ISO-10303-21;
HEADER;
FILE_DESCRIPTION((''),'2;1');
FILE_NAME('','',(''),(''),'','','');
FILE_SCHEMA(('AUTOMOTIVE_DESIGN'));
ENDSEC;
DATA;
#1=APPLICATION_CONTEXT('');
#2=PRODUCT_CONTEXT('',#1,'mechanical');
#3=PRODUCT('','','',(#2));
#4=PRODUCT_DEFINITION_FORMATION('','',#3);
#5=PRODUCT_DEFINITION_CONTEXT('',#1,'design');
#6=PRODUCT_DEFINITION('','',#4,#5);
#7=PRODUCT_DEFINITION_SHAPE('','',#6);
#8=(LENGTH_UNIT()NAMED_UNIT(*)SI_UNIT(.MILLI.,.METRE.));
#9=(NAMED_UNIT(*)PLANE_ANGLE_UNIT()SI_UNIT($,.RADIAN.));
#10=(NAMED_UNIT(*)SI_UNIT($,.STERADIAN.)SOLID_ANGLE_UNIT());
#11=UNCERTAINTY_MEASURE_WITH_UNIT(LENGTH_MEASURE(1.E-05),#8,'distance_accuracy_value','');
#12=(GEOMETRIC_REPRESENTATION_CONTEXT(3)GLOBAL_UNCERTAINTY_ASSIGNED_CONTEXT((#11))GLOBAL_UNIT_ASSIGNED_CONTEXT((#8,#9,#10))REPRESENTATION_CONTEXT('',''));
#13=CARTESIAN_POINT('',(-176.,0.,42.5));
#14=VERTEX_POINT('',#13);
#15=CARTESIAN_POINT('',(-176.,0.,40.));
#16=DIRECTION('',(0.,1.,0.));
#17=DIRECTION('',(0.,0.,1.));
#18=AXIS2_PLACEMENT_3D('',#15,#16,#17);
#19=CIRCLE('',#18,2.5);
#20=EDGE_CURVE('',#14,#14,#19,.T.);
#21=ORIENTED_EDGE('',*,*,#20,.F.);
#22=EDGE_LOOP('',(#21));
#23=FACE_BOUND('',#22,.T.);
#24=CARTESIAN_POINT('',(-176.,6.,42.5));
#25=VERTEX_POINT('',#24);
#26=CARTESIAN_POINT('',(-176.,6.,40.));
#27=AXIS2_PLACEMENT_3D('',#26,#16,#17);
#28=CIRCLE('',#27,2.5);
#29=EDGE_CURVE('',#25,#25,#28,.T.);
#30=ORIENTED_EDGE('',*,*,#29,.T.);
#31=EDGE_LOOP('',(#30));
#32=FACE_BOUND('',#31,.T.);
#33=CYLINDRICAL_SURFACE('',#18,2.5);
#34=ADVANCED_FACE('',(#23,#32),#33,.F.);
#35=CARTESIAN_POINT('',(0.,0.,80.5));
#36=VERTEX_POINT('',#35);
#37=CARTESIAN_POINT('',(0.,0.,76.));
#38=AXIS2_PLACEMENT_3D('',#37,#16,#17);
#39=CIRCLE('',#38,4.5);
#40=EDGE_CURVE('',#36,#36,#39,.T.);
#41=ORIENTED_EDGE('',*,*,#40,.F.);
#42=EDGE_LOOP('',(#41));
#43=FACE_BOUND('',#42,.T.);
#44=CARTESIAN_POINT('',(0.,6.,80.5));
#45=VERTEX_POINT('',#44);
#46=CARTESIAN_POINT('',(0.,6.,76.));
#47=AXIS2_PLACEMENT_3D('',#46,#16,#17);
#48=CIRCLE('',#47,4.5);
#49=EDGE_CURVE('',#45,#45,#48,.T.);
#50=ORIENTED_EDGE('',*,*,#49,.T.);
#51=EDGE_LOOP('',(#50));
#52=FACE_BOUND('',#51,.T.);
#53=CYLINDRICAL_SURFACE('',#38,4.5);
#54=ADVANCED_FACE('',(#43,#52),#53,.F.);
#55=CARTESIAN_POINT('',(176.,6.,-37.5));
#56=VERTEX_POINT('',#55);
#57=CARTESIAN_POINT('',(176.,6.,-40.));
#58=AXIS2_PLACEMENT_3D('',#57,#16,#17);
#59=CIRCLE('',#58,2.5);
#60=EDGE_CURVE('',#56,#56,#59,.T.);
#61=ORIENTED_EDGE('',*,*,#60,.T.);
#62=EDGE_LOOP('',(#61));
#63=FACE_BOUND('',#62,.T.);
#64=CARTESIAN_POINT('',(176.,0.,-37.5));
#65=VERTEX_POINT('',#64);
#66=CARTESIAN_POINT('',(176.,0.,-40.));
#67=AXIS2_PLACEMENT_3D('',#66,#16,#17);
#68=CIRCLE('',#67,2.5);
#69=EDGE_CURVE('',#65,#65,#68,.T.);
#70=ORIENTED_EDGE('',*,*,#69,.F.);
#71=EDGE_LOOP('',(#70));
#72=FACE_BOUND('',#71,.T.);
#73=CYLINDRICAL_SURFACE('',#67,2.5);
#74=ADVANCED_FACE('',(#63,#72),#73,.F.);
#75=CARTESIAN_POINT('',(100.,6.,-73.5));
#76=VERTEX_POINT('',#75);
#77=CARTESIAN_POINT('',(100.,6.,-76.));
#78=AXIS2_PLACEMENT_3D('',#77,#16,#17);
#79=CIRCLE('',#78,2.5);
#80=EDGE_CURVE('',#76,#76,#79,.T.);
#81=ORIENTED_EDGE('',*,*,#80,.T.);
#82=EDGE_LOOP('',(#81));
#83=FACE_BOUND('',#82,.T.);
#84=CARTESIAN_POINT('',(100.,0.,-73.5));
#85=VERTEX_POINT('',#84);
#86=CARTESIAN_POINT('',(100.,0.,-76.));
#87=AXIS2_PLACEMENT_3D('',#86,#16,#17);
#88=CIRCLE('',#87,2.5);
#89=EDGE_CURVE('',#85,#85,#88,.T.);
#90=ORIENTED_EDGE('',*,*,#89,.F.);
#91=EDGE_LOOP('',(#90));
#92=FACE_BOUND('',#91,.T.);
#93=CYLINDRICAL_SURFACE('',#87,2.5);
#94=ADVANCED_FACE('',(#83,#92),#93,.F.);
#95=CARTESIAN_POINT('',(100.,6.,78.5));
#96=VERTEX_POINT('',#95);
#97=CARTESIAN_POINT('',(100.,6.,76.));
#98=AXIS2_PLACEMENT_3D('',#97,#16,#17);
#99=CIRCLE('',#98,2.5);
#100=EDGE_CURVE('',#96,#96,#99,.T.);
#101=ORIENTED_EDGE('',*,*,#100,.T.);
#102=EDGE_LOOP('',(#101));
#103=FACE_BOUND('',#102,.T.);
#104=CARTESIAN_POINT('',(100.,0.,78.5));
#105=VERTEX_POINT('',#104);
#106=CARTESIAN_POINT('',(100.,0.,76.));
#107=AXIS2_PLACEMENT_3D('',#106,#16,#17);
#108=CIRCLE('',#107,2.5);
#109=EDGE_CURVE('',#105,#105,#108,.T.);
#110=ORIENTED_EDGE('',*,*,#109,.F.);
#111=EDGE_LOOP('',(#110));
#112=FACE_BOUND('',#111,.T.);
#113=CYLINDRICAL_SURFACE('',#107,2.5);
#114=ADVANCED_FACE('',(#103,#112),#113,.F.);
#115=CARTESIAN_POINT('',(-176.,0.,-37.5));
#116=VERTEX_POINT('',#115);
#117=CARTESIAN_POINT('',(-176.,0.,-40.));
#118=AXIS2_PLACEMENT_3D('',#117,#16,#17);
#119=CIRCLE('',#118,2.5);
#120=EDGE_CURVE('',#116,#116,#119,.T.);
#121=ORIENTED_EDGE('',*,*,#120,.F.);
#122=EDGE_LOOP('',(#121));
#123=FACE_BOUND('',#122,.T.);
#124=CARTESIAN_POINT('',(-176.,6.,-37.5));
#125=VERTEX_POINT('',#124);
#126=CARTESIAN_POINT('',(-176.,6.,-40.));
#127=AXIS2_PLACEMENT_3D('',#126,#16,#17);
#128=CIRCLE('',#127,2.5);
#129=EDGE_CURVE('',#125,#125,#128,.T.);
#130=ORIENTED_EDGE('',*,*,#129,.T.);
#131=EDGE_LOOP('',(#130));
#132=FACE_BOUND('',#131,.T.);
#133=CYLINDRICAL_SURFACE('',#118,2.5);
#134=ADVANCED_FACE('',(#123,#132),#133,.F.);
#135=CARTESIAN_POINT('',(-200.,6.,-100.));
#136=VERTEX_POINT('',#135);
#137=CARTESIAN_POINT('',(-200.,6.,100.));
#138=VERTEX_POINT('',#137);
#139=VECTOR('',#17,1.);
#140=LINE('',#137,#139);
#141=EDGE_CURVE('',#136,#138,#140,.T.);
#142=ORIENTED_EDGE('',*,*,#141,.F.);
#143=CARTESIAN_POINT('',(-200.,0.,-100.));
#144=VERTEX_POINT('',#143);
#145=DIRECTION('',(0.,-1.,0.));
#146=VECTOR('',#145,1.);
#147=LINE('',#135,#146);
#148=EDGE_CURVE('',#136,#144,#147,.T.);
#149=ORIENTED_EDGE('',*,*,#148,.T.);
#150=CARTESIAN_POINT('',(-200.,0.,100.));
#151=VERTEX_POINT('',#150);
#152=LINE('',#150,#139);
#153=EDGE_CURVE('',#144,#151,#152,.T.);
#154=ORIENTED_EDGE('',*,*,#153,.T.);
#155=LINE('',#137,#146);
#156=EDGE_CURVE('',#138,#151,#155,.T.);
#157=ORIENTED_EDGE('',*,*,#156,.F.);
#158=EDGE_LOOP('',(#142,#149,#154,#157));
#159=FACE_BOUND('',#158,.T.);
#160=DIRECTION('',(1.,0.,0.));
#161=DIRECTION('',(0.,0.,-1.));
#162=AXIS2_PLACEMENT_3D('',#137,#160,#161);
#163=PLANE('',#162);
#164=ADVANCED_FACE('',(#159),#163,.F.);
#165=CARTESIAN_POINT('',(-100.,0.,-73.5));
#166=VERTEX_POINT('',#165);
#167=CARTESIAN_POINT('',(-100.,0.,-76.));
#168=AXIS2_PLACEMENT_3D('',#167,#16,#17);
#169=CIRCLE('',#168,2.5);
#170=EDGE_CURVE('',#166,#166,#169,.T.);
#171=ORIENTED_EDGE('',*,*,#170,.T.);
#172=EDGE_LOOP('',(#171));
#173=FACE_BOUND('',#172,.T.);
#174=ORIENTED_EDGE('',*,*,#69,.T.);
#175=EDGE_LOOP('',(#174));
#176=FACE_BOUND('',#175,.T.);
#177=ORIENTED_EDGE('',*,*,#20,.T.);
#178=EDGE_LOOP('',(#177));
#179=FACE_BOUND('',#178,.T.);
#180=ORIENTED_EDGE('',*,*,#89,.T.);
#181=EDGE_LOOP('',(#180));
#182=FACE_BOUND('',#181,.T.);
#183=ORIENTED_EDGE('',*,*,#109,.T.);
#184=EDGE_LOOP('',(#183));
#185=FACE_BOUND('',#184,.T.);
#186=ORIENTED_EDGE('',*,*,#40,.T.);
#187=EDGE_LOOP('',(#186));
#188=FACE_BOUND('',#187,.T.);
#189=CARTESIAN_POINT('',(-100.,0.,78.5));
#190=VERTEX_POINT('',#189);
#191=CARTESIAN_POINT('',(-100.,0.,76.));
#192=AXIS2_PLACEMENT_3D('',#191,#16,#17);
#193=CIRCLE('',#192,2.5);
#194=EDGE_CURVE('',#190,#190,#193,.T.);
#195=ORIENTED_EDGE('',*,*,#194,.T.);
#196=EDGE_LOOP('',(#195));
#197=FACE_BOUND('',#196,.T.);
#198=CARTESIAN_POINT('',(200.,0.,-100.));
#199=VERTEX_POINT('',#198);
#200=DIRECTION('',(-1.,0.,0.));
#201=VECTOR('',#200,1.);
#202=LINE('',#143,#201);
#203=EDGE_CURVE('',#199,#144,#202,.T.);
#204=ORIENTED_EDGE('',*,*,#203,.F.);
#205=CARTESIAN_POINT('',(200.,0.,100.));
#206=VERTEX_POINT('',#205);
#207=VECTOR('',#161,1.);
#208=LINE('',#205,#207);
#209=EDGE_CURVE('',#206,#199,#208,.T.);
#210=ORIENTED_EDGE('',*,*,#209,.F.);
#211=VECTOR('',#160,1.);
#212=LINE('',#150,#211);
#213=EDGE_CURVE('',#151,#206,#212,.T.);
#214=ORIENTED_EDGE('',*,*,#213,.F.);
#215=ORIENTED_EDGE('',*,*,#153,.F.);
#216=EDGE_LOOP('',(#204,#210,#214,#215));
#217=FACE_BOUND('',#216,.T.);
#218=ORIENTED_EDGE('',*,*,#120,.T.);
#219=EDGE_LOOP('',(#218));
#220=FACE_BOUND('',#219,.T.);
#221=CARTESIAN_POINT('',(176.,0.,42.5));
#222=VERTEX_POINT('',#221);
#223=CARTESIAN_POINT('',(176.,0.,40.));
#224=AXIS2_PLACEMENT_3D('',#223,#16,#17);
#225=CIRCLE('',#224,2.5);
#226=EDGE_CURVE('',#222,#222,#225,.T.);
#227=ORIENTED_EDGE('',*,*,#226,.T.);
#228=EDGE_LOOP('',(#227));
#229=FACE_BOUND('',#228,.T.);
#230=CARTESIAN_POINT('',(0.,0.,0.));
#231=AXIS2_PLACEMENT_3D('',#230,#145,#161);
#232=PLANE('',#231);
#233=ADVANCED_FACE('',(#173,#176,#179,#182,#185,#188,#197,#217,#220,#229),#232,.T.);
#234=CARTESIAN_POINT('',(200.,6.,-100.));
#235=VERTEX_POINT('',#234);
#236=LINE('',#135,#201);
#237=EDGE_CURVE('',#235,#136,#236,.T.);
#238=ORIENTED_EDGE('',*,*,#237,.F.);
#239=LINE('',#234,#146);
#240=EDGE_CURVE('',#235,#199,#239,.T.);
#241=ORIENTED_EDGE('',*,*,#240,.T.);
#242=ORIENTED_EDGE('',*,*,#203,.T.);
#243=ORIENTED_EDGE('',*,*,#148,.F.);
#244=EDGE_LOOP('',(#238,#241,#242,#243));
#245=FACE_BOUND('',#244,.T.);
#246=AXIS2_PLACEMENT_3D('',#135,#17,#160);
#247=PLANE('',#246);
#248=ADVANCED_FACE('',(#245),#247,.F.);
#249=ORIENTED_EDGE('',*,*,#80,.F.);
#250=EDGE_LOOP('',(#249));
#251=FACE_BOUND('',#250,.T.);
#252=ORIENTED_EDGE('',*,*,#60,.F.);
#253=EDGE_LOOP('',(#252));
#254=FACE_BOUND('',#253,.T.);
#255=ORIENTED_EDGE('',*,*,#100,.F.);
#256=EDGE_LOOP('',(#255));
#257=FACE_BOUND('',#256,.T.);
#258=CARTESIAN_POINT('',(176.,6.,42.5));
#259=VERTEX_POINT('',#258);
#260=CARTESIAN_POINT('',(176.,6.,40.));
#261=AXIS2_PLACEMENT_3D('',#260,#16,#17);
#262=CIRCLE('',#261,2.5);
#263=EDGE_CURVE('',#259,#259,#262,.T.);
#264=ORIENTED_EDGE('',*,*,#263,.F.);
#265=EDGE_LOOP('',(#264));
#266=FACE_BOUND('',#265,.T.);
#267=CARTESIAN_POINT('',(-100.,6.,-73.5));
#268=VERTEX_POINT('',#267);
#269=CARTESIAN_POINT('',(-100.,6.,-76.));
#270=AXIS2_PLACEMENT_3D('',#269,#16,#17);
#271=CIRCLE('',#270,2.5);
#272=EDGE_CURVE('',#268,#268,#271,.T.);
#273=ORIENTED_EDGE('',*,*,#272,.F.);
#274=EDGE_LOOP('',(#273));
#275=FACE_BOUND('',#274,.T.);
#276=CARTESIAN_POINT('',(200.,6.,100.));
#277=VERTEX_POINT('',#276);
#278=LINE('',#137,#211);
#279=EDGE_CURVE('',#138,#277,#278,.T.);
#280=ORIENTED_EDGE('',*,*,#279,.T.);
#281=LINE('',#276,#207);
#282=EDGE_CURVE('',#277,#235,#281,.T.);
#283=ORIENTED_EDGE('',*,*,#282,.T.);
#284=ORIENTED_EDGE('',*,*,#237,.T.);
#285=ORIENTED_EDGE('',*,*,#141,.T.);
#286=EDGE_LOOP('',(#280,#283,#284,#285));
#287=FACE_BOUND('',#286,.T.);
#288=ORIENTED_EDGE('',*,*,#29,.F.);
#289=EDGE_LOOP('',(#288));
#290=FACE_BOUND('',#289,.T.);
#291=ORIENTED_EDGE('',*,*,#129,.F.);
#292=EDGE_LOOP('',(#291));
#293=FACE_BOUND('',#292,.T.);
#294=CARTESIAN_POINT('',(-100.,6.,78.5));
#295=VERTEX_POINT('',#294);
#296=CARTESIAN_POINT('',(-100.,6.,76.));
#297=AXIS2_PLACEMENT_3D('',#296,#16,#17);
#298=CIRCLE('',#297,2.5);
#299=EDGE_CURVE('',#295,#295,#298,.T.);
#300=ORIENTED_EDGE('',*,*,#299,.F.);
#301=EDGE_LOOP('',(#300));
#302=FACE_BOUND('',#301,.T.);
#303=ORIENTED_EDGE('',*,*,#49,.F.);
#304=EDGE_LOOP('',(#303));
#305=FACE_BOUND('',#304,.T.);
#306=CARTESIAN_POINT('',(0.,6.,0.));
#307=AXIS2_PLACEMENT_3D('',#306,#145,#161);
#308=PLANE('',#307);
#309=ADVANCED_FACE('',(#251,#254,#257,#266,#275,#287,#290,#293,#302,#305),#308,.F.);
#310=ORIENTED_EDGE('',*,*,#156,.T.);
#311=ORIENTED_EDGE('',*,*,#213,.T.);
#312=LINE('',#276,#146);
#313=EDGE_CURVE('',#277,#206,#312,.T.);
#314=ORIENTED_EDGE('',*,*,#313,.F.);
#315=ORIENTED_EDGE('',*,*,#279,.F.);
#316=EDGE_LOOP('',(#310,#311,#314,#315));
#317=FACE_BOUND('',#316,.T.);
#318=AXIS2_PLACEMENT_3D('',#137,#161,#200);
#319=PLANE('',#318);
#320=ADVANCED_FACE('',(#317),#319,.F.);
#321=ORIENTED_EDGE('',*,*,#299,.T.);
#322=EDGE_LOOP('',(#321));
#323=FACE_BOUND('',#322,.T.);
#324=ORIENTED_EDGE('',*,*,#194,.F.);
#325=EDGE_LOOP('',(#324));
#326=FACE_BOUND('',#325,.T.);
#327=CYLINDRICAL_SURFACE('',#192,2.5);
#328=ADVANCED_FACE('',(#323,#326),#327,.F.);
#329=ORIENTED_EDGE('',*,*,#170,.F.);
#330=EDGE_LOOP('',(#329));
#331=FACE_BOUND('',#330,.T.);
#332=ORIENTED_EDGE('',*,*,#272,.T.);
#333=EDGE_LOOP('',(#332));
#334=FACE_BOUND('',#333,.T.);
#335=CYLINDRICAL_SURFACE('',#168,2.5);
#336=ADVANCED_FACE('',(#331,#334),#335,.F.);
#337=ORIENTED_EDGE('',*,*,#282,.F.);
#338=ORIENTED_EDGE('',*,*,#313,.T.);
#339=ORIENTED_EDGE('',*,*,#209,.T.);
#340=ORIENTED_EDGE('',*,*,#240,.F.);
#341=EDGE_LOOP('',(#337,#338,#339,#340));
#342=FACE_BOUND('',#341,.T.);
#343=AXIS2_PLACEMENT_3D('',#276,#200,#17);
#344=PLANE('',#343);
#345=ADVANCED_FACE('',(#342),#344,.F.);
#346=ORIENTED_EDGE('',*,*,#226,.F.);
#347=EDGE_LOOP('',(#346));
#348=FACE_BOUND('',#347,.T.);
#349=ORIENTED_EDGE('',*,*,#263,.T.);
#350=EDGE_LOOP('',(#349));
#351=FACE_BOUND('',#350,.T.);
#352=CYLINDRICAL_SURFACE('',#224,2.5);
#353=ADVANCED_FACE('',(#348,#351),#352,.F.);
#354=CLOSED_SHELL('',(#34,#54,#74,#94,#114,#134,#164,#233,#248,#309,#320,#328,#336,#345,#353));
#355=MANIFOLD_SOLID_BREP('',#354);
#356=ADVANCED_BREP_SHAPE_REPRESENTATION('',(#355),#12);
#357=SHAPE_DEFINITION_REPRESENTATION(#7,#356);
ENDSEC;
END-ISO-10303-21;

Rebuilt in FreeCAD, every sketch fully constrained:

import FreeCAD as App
import Part
import Sketcher

doc = App.newDocument("Part")
params = doc.addObject("Spreadsheet::Sheet", "Params")
for row, (alias, value) in enumerate([
    ("sketch1_width", "400 mm"),
    ("sketch1_height", "200 mm"),
    ("pad1_length", "6 mm"),
    ("sketch2_diameter", "5 mm"),
    ("sketch3_diameter", "9 mm"),
], start=1):
    params.set(f"A{row}", alias)
    params.set(f"B{row}", "=" + value)
    params.setAlias(f"B{row}", alias)

body = doc.addObject("PartDesign::Body", "Body")

# Sketch on XZ plane
sketch1 = body.newObject("Sketcher::SketchObject", "Sketch")
sketch1.AttachmentSupport = (doc.getObject("XZ_Plane"), [""])
sketch1.MapMode = "FlatFace"
sketch1.addGeometry([
    Part.LineSegment(App.Vector(-200, -100, 0), App.Vector(-200, 100, 0)),
    Part.LineSegment(App.Vector(-200, 100, 0), App.Vector(200, 100, 0)),
    Part.LineSegment(App.Vector(200, 100, 0), App.Vector(200, -100, 0)),
    Part.LineSegment(App.Vector(200, -100, 0), App.Vector(-200, -100, 0)),
], False)
sketch1.addConstraint([
    Sketcher.Constraint("Coincident", 0, 2, 1, 1),
    Sketcher.Constraint("Coincident", 1, 2, 2, 1),
    Sketcher.Constraint("Coincident", 2, 2, 3, 1),
    Sketcher.Constraint("Coincident", 3, 2, 0, 1),
    Sketcher.Constraint("Vertical", 0),
    Sketcher.Constraint("Horizontal", 1),
    Sketcher.Constraint("Vertical", 2),
    Sketcher.Constraint("Horizontal", 3),
    Sketcher.Constraint("Symmetric", 0, 2, 2, 2, -1, 1),
    Sketcher.Constraint("DistanceX", 1, 1, 1, 2, 400.0),
    Sketcher.Constraint("DistanceY", 0, 1, 0, 2, 200.0),
])
sketch1.setExpression("Constraints[9]", "Params.sketch1_width")
sketch1.setExpression("Constraints[10]", "Params.sketch1_height")
pad1 = body.newObject("PartDesign::Pad", "Pad")
pad1.Profile = sketch1
pad1.setExpression("Length", "Params.pad1_length")
pad1.Reversed = True

# Sketch on XZ plane
sketch2 = body.newObject("Sketcher::SketchObject", "Sketch001")
sketch2.AttachmentSupport = (doc.getObject("XZ_Plane"), [""])
sketch2.MapMode = "FlatFace"
sketch2.AttachmentOffset = App.Placement(App.Vector(0, 0, -6), App.Rotation())
sketch2.addGeometry([
    Part.Circle(App.Vector(-100, -76, 0), App.Vector(0, 0, 1), 2.5),  # 0
    Part.Circle(App.Vector(100, -76, 0), App.Vector(0, 0, 1), 2.5),  # 1
    Part.Circle(App.Vector(100, 76, 0), App.Vector(0, 0, 1), 2.5),  # 2
    Part.Circle(App.Vector(-100, 76, 0), App.Vector(0, 0, 1), 2.5),  # 3
    Part.Circle(App.Vector(-176, -40, 0), App.Vector(0, 0, 1), 2.5),  # 4
    Part.Circle(App.Vector(-176, 40, 0), App.Vector(0, 0, 1), 2.5),  # 5
    Part.Circle(App.Vector(176, 40, 0), App.Vector(0, 0, 1), 2.5),  # 6
    Part.Circle(App.Vector(176, -40, 0), App.Vector(0, 0, 1), 2.5),  # 7
], False)
sketch2.addConstraint([
    Sketcher.Constraint("Equal", 0, 1),
    Sketcher.Constraint("Equal", 1, 2),
    Sketcher.Constraint("Equal", 2, 3),
    Sketcher.Constraint("Equal", 3, 4),
    Sketcher.Constraint("Equal", 4, 5),
    Sketcher.Constraint("Equal", 5, 6),
    Sketcher.Constraint("Equal", 6, 7),
    Sketcher.Constraint("Symmetric", 0, 3, 2, 3, -1, 1),
    Sketcher.Constraint("Symmetric", 1, 3, 3, 3, -1, 1),
    Sketcher.Constraint("Symmetric", 4, 3, 6, 3, -1, 1),
    Sketcher.Constraint("Symmetric", 5, 3, 7, 3, -1, 1),
    Sketcher.Constraint("Symmetric", 0, 3, 1, 3, -2),
    Sketcher.Constraint("Symmetric", 5, 3, 6, 3, -2),
    Sketcher.Constraint("Diameter", 0, 5.0),
    Sketcher.Constraint("DistanceX", 0, 3, -1, 1, 100.0),
    Sketcher.Constraint("DistanceY", 0, 3, -1, 1, 76.0),
    Sketcher.Constraint("DistanceX", 4, 3, -1, 1, 176.0),
    Sketcher.Constraint("DistanceY", 4, 3, -1, 1, 40.0),
])
sketch2.setExpression("Constraints[13]", "Params.sketch2_diameter")
pocket1 = body.newObject("PartDesign::Pocket", "Pocket")
pocket1.Profile = sketch2
pocket1.Type = "ThroughAll"
pocket1.Reversed = True

# Sketch on XZ plane
sketch3 = body.newObject("Sketcher::SketchObject", "Sketch002")
sketch3.AttachmentSupport = (doc.getObject("XZ_Plane"), [""])
sketch3.MapMode = "FlatFace"
sketch3.AttachmentOffset = App.Placement(App.Vector(0, 0, -6), App.Rotation())
sketch3.addGeometry(Part.Circle(App.Vector(0, 76, 0), App.Vector(0, 0, 1), 4.5), False)
sketch3.addConstraint([
    Sketcher.Constraint("PointOnObject", 0, 3, -2),
    Sketcher.Constraint("Diameter", 0, 9.0),
    Sketcher.Constraint("DistanceY", -1, 1, 0, 3, 76.0),
])
sketch3.setExpression("Constraints[1]", "Params.sketch3_diameter")
pocket2 = body.newObject("PartDesign::Pocket", "Pocket001")
pocket2.Profile = sketch3
pocket2.Type = "ThroughAll"
pocket2.Reversed = True

doc.recompute()
